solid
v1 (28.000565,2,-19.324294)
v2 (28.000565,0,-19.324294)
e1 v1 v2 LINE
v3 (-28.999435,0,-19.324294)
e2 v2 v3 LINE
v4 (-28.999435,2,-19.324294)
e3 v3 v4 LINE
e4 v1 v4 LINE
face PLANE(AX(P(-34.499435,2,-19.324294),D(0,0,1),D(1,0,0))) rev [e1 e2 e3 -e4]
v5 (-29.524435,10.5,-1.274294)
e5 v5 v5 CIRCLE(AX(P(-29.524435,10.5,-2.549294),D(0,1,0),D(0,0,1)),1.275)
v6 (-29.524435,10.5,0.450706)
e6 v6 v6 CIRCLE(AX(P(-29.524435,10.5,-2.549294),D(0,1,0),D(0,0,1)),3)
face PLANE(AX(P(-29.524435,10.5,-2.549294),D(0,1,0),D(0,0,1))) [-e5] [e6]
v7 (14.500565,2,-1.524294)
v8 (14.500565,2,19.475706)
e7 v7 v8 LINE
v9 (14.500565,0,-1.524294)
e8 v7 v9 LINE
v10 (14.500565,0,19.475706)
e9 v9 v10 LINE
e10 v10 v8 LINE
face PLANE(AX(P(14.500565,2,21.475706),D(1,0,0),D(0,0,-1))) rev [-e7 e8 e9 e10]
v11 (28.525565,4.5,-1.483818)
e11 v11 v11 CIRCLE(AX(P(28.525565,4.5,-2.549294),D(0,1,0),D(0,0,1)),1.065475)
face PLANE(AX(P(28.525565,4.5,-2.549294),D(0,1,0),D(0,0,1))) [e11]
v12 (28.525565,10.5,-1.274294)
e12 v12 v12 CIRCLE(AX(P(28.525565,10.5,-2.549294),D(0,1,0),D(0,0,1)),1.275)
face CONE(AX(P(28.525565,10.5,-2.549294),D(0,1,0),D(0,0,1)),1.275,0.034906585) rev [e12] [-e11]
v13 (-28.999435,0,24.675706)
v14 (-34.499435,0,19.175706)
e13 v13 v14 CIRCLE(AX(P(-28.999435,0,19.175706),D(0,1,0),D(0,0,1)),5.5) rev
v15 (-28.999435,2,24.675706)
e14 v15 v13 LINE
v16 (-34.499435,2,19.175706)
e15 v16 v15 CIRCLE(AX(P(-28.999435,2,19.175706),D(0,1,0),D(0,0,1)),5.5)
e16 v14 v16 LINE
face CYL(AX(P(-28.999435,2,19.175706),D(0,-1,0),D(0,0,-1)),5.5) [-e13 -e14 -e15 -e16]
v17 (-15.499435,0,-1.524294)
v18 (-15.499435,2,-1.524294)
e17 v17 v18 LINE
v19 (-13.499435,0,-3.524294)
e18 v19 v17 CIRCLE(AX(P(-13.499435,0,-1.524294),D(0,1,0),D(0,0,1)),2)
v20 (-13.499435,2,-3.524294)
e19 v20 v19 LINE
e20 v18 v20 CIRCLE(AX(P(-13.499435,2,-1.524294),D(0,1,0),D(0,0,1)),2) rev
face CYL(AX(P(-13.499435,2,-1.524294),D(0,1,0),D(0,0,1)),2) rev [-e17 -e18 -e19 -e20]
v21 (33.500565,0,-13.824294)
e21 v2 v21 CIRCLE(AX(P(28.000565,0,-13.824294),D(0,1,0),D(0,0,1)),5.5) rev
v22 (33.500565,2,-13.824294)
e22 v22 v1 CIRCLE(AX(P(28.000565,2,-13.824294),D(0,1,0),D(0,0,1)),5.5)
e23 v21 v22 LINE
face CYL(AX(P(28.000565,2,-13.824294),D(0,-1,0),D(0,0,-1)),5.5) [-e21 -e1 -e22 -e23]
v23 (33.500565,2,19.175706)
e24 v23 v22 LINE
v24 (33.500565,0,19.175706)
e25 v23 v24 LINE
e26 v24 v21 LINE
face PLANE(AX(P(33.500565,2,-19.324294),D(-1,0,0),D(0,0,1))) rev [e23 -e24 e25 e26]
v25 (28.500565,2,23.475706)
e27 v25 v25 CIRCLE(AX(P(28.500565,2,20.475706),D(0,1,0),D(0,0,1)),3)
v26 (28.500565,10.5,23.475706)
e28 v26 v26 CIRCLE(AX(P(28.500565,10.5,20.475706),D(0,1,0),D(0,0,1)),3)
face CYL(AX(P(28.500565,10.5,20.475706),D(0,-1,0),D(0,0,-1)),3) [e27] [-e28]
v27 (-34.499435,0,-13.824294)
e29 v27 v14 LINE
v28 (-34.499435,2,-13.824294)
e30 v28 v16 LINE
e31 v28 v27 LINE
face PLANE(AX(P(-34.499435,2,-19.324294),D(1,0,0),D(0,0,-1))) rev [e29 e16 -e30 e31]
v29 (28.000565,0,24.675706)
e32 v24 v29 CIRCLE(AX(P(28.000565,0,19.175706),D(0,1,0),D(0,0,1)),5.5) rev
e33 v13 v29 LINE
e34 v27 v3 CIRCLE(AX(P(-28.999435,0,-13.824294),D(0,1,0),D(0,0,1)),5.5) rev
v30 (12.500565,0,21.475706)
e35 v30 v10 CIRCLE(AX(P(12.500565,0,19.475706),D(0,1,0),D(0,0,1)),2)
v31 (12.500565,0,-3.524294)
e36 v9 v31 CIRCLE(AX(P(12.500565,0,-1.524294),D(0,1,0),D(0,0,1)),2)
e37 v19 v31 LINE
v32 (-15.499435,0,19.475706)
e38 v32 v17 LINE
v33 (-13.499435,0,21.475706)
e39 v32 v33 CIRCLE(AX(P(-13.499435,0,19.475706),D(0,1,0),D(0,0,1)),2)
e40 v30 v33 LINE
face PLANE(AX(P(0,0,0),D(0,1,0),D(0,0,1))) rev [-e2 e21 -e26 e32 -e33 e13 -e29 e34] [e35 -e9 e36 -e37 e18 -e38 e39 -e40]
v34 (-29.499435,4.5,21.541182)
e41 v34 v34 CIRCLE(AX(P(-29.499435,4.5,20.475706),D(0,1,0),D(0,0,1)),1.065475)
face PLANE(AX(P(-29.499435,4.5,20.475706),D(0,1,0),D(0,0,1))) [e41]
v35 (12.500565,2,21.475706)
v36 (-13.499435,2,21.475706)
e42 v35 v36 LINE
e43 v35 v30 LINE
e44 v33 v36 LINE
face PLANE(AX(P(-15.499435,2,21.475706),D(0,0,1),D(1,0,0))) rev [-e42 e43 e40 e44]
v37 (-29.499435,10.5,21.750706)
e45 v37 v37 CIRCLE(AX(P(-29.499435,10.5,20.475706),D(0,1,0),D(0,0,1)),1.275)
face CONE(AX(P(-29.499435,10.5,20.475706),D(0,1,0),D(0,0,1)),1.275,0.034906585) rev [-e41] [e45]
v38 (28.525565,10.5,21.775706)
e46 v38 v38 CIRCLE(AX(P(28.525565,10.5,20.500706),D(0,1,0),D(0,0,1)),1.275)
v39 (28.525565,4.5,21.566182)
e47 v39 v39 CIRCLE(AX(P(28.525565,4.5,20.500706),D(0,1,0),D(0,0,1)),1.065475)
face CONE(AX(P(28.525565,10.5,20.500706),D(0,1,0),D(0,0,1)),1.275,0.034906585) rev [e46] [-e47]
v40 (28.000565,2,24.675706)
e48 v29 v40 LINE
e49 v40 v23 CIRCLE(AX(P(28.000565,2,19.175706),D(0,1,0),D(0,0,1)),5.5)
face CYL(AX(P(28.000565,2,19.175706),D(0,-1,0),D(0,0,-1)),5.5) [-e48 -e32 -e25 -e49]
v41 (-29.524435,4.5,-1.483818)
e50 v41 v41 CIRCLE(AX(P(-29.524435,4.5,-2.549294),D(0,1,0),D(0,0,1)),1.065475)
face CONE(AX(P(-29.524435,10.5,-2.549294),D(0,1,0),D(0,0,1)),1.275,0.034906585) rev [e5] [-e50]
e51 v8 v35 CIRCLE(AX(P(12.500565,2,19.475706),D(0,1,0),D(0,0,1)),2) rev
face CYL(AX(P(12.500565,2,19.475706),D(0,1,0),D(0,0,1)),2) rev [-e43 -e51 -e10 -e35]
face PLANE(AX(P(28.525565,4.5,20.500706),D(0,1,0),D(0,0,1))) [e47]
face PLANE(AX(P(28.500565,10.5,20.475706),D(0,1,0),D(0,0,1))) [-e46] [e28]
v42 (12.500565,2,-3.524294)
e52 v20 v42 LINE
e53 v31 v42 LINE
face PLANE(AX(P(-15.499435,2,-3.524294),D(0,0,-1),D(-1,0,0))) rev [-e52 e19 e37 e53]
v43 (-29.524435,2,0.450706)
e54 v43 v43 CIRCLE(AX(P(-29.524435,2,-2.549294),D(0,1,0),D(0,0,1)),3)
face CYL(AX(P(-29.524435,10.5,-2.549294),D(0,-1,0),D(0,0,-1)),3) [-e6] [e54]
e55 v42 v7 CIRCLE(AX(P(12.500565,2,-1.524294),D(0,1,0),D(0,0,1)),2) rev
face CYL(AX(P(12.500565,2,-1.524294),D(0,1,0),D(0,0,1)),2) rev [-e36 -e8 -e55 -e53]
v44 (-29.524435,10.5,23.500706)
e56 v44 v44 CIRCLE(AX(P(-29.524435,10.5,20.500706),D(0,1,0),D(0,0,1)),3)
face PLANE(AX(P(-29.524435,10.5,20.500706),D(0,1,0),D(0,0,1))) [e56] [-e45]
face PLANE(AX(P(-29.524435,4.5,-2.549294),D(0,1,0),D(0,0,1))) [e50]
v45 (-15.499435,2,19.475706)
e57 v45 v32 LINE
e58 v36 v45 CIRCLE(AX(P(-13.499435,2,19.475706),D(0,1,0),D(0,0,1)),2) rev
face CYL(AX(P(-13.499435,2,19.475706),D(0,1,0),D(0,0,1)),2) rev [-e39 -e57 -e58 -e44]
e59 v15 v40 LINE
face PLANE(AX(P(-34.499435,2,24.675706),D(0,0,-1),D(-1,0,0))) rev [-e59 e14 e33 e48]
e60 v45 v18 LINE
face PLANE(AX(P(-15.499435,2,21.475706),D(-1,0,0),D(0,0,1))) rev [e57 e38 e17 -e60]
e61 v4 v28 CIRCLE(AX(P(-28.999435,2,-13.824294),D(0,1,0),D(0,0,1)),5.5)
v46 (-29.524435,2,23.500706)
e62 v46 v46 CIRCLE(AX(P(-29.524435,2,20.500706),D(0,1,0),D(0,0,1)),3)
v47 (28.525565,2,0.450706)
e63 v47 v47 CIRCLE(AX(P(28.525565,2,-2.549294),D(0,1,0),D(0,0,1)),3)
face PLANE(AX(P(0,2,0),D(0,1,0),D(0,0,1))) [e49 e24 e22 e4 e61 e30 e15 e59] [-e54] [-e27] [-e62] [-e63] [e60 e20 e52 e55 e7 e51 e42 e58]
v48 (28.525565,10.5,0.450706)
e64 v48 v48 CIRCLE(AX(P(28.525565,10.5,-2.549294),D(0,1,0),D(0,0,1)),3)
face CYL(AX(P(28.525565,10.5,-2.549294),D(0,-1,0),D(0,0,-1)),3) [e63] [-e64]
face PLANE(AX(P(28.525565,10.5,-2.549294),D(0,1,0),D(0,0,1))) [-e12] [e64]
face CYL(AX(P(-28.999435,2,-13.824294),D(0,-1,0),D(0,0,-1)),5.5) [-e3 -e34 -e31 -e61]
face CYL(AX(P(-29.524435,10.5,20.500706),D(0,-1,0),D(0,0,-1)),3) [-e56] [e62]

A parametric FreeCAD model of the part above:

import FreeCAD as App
import Part
import Sketcher


def edges_at(feature, points):
    """Names of the edges that pass closest to the given points."""
    edges = feature.Shape.Edges
    near = lambda p: min(range(len(edges)), key=lambda i: edges[i].distToShape(Part.Vertex(*p))[0])
    return sorted({f"Edge{near(p) + 1}" for p in points})


def add_polygon(sketch, points):
    """Adds a closed chain of lines whose ends are joined by coincident constraints."""
    first, n = sketch.GeometryCount, len(points)
    for a, b in zip(points, points[1:] + points[:1]):
        sketch.addGeometry(Part.LineSegment(App.Vector(*a, 0), App.Vector(*b, 0)), False)
    for i in range(n):
        sketch.addConstraint(Sketcher.Constraint("Coincident", first + i, 2, first + (i + 1) % n, 1))

doc = App.newDocument("Part")
params = doc.addObject("Spreadsheet::Sheet", "Params")
for row, (alias, value) in enumerate([
    ("sketch1_width", "68 mm"),
    ("sketch1_height", "44 mm"),
    ("pad1_length", "2 mm"),
    ("fillet_radius", "5.5 mm"),
    ("sketch2_width", "30 mm"),
    ("sketch2_height", "25 mm"),
    ("fillet2_radius", "2 mm"),
    ("sketch3_diameter", "6 mm"),
    ("pad2_length", "8.5 mm"),
    ("sketch4_diameter", "2.55 mm"),
    ("pocket2_length", "6 mm"),
    ("pocket2_taper", "-2 deg"),
], start=1):
    params.set(f"A{row}", alias)
    params.set(f"B{row}", "=" + value)
    params.setAlias(f"B{row}", alias)

body = doc.addObject("PartDesign::Body", "Body")

sketch1 = body.newObject("Sketcher::SketchObject", "Sketch")
sketch1.AttachmentSupport = (doc.getObject("XZ_Plane"), [""])
sketch1.MapMode = "FlatFace"
add_polygon(sketch1, [(-34.499435, -19.324294), (-34.499435, 24.675706), (33.500565, 24.675706), (33.500565, -19.324294)])
sketch1.addConstraint([
    Sketcher.Constraint("Vertical", 0),
    Sketcher.Constraint("Horizontal", 1),
    Sketcher.Constraint("Vertical", 2),
    Sketcher.Constraint("Horizontal", 3),
    Sketcher.Constraint("DistanceX", 1, 1, 1, 2, 68.0),
    Sketcher.Constraint("DistanceY", 0, 1, 0, 2, 44.0),
    Sketcher.Constraint("DistanceX", 0, 2, -1, 1, 34.499435),
    Sketcher.Constraint("DistanceY", -1, 1, 0, 2, 24.675706),
])
sketch1.setExpression("Constraints[8]", "Params.sketch1_width")
sketch1.setExpression("Constraints[9]", "Params.sketch1_height")
pad1 = body.newObject("PartDesign::Pad", "Pad")
pad1.Profile = sketch1
pad1.setExpression("Length", "Params.pad1_length")
pad1.Reversed = True
doc.recompute()

fillet = body.newObject("PartDesign::Fillet", "Fillet")
fillet.Base = (pad1, edges_at(pad1, [
    (-34.499, 1, -19.324),
    (33.501, 1, -19.324),
    (33.501, 1, 24.676),
    (-34.499, 1, 24.676),
]))
fillet.setExpression("Radius", "Params.fillet_radius")

sketch2 = body.newObject("Sketcher::SketchObject", "Sketch001")
sketch2.AttachmentSupport = (doc.getObject("XZ_Plane"), [""])
sketch2.MapMode = "FlatFace"
add_polygon(sketch2, [(-15.499435, 21.475706), (-15.499435, -3.524294), (14.500565, -3.524294), (14.500565, 21.475706)])
sketch2.addConstraint([
    Sketcher.Constraint("Vertical", 0),
    Sketcher.Constraint("Horizontal", 1),
    Sketcher.Constraint("Vertical", 2),
    Sketcher.Constraint("Horizontal", 3),
    Sketcher.Constraint("DistanceX", 1, 1, 1, 2, 30.0),
    Sketcher.Constraint("DistanceY", 0, 2, 0, 1, 25.0),
    Sketcher.Constraint("DistanceX", 0, 2, -1, 1, 15.499435),
    Sketcher.Constraint("DistanceY", 0, 2, -1, 1, 3.524294),
])
sketch2.setExpression("Constraints[8]", "Params.sketch2_width")
sketch2.setExpression("Constraints[9]", "Params.sketch2_height")
pocket1 = body.newObject("PartDesign::Pocket", "Pocket")
pocket1.Profile = sketch2
pocket1.Type = "ThroughAll"
doc.recompute()

fillet2 = body.newObject("PartDesign::Fillet", "Fillet001")
fillet2.Base = (pocket1, edges_at(pocket1, [
    (14.501, 1, 21.476),
    (14.501, 1, -3.524),
    (-15.499, 1, -3.524),
    (-15.499, 1, 21.476),
]))
fillet2.setExpression("Radius", "Params.fillet2_radius")

sketch3 = body.newObject("Sketcher::SketchObject", "Sketch002")
sketch3.AttachmentSupport = (doc.getObject("XZ_Plane"), [""])
sketch3.MapMode = "FlatFace"
sketch3.AttachmentOffset = App.Placement(App.Vector(0, 0, -2), App.Rotation())
sketch3.addGeometry([
    Part.Circle(App.Vector(-29.524435, -2.549294, 0), App.Vector(0, 0, 1), 3),
    Part.Circle(App.Vector(-29.524435, 20.500706, 0), App.Vector(0, 0, 1), 3),
    Part.Circle(App.Vector(28.500565, 20.475706, 0), App.Vector(0, 0, 1), 3),
    Part.Circle(App.Vector(28.525565, -2.549294, 0), App.Vector(0, 0, 1), 3),
], False)
sketch3.addConstraint([
    Sketcher.Constraint("Equal", 0, 1),
    Sketcher.Constraint("Equal", 1, 2),
    Sketcher.Constraint("Equal", 2, 3),
    Sketcher.Constraint("Horizontal", 0, 3, 3, 3),
    Sketcher.Constraint("Vertical", 0, 3, 1, 3),
    Sketcher.Constraint("Diameter", 0, 6.0),
    Sketcher.Constraint("DistanceY", 0, 3, 1, 3, 23.05),
    Sketcher.Constraint("DistanceX", 0, 3, 3, 3, 58.05),
    Sketcher.Constraint("DistanceX", 1, 3, 2, 3, 58.025),
    Sketcher.Constraint("DistanceY", 2, 3, 1, 3, 0.025),
    Sketcher.Constraint("DistanceX", 0, 3, -1, 1, 29.524435),
    Sketcher.Constraint("DistanceY", 0, 3, -1, 1, 2.549294),
])
sketch3.setExpression("Constraints[5]", "Params.sketch3_diameter")
pad2 = body.newObject("PartDesign::Pad", "Pad001")
pad2.Profile = sketch3
pad2.setExpression("Length", "Params.pad2_length")
pad2.Reversed = True

sketch4 = body.newObject("Sketcher::SketchObject", "Sketch003")
sketch4.AttachmentSupport = (doc.getObject("XZ_Plane"), [""])
sketch4.MapMode = "FlatFace"
sketch4.AttachmentOffset = App.Placement(App.Vector(0, 0, -10.5), App.Rotation())
sketch4.addGeometry([
    Part.Circle(App.Vector(-29.524435, -2.549294, 0), App.Vector(0, 0, 1), 1.275),
    Part.Circle(App.Vector(-29.499435, 20.475706, 0), App.Vector(0, 0, 1), 1.275),
    Part.Circle(App.Vector(28.525565, 20.500706, 0), App.Vector(0, 0, 1), 1.275),
    Part.Circle(App.Vector(28.525565, -2.549294, 0), App.Vector(0, 0, 1), 1.275),
], False)
sketch4.addConstraint([
    Sketcher.Constraint("Equal", 0, 1),
    Sketcher.Constraint("Equal", 1, 2),
    Sketcher.Constraint("Equal", 2, 3),
    Sketcher.Constraint("Horizontal", 0, 3, 3, 3),
    Sketcher.Constraint("Vertical", 2, 3, 3, 3),
    Sketcher.Constraint("Diameter", 0, 2.55),
    Sketcher.Constraint("DistanceX", 0, 3, 2, 3, 58.05),
    Sketcher.Constraint("DistanceY", 0, 3, 2, 3, 23.05),
    Sketcher.Constraint("DistanceX", 0, 3, 1, 3, 0.025),
    Sketcher.Constraint("DistanceY", 0, 3, 1, 3, 23.025),
    Sketcher.Constraint("DistanceX", 0, 3, -1, 1, 29.524435),
    Sketcher.Constraint("DistanceY", 0, 3, -1, 1, 2.549294),
])
sketch4.setExpression("Constraints[5]", "Params.sketch4_diameter")
pocket2 = body.newObject("PartDesign::Pocket", "Pocket001")
pocket2.Profile = sketch4
pocket2.setExpression("Length", "Params.pocket2_length")
pocket2.Reversed = True
pocket2.setExpression("TaperAngle", "Params.pocket2_taper")

doc.recompute()
